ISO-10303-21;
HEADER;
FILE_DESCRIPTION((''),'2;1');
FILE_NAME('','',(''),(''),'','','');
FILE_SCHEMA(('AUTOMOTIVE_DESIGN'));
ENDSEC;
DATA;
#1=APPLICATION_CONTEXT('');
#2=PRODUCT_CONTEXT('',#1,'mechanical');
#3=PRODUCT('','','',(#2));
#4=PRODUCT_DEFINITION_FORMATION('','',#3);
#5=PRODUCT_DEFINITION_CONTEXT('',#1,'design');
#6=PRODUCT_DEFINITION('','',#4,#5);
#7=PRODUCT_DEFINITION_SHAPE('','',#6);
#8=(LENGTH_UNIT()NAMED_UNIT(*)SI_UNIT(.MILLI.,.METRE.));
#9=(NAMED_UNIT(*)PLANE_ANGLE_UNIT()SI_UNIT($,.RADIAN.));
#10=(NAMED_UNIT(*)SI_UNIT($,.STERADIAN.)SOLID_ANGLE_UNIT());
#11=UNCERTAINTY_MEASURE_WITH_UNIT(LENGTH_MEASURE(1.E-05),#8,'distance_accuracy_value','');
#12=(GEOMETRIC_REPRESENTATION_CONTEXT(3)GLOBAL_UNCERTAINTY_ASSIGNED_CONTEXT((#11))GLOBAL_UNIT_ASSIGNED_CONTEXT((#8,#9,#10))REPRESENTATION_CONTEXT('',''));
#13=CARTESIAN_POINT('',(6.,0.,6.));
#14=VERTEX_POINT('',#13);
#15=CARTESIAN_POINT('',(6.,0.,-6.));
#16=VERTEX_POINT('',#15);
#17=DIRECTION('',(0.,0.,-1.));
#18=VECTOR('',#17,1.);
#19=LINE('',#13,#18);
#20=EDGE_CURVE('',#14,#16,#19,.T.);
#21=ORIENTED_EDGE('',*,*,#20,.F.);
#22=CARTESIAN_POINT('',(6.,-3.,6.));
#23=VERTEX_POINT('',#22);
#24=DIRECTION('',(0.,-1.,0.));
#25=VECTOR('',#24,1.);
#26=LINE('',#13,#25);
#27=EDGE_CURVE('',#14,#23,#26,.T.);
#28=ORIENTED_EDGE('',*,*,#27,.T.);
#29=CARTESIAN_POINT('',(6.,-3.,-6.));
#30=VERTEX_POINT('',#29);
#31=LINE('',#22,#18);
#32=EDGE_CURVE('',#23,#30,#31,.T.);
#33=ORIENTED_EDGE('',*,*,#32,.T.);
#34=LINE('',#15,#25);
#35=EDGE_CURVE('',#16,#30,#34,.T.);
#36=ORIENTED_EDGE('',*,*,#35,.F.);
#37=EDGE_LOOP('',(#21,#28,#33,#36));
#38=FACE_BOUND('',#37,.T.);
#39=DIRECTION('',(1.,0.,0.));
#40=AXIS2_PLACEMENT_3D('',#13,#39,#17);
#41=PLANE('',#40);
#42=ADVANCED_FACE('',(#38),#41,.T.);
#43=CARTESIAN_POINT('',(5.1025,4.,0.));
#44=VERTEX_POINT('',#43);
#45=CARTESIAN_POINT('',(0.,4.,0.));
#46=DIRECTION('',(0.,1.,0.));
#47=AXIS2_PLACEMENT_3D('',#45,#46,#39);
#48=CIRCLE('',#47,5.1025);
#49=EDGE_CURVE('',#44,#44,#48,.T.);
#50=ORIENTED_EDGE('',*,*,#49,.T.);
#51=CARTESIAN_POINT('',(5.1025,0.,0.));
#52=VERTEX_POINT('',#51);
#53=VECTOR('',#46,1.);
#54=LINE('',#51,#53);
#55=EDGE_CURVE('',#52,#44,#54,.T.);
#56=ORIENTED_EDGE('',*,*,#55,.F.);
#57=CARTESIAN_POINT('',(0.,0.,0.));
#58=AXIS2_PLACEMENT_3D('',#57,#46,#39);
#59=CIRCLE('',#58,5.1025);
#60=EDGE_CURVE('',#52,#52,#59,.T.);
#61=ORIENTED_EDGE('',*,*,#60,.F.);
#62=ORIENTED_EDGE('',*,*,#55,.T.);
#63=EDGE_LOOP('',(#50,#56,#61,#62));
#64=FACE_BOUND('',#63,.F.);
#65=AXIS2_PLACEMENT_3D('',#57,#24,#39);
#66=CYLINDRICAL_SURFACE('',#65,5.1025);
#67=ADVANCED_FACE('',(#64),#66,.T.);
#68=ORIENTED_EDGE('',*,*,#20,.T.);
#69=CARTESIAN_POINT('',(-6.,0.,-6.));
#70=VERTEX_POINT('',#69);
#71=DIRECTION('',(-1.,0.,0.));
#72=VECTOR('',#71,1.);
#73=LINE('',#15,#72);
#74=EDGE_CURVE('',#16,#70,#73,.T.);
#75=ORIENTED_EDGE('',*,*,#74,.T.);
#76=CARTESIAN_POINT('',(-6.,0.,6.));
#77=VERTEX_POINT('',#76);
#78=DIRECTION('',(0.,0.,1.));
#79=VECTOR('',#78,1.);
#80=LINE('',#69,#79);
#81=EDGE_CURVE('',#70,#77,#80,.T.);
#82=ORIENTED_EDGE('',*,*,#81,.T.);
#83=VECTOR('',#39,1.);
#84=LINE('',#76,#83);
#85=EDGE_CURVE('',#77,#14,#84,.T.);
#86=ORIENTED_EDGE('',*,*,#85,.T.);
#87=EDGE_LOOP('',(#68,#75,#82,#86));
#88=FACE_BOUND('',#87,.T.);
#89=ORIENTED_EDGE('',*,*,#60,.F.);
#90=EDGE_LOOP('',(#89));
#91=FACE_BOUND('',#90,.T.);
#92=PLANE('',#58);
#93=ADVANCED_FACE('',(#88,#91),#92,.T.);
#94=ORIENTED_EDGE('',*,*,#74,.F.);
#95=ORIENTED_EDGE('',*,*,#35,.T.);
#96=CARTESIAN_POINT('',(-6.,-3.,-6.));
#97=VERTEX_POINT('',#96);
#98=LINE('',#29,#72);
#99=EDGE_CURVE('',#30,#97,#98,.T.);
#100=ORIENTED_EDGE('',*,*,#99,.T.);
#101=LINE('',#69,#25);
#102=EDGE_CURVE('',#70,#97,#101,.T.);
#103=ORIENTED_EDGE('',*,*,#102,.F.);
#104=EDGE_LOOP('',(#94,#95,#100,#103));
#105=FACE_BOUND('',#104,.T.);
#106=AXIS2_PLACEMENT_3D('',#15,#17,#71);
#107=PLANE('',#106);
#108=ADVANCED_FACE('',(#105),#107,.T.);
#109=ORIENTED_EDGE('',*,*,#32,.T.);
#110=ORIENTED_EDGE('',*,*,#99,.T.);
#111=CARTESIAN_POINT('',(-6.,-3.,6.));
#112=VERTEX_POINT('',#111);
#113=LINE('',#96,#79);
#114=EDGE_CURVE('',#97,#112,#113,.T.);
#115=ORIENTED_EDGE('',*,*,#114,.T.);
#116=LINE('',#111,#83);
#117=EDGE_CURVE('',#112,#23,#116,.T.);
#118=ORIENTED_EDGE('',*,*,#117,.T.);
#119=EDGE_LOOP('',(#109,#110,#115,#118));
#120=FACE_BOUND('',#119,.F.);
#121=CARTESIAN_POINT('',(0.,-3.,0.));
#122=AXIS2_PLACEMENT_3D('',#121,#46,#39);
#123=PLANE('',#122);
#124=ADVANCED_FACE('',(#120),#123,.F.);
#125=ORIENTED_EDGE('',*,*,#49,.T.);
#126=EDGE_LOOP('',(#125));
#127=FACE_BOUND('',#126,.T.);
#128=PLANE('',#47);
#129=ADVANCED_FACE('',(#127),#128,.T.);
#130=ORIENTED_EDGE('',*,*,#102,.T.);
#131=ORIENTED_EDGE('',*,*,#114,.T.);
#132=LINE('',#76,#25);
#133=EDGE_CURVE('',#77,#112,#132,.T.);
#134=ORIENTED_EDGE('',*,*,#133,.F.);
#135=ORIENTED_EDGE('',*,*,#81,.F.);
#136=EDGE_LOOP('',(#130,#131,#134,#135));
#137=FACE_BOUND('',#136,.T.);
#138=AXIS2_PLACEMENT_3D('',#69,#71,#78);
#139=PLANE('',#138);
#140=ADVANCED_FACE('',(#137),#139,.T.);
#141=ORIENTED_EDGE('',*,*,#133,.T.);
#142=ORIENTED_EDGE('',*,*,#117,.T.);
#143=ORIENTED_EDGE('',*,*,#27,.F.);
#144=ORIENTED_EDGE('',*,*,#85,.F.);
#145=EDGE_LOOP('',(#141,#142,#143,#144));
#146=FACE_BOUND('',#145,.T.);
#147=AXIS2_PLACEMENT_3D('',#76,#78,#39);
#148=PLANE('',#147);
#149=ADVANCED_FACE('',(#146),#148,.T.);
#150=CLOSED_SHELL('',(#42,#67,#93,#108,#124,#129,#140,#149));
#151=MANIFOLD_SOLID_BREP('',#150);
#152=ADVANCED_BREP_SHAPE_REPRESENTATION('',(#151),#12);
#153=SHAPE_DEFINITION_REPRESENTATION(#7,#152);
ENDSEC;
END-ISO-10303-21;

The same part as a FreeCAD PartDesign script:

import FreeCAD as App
import Part
import Sketcher

V = App.Vector
Q = App.Units.Quantity


def add_polygon(sketch, points):
    """Adds a closed chain of lines whose ends are joined by coincident constraints."""
    first, n = sketch.GeometryCount, len(points)
    for a, b in zip(points, points[1:] + points[:1]):
        sketch.addGeometry(Part.LineSegment(App.Vector(*a, 0), App.Vector(*b, 0)), False)
    for i in range(n):
        sketch.addConstraint(Sketcher.Constraint("Coincident", first + i, 2, first + (i + 1) % n, 1))

doc = App.newDocument("Part")
body = doc.addObject("PartDesign::Body", "Body")

sketch1 = body.newObject("Sketcher::SketchObject", "Sketch")
sketch1.AttachmentSupport = (doc.getObject("XZ_Plane"), [""])
sketch1.MapMode = "FlatFace"
sketch1.addGeometry(Part.Circle(V(0, 0, 0), V(0, 0, 1), 5), False)
sketch1.addConstraint([
    Sketcher.Constraint("Coincident", 0, 3, -1, 1),
    Sketcher.Constraint("Diameter", 0, Q("10.205 mm")),
])
pad1 = body.newObject("PartDesign::Pad", "Pad")
pad1.Profile = sketch1
pad1.Length = 4
pad1.Reversed = True

sketch2 = body.newObject("Sketcher::SketchObject", "Sketch001")
sketch2.AttachmentSupport = (doc.getObject("XZ_Plane"), [""])
sketch2.MapMode = "FlatFace"
add_polygon(sketch2, [(6, 6), (6, -6), (-6, -6), (-6, 6)])
sketch2.addConstraint([
    Sketcher.Constraint("Vertical", 0),
    Sketcher.Constraint("Horizontal", 1),
    Sketcher.Constraint("Vertical", 2),
    Sketcher.Constraint("Horizontal", 3),
    Sketcher.Constraint("Symmetric", 0, 2, 2, 2, -1, 1),
    Sketcher.Constraint("Equal", 3, 0),
    Sketcher.Constraint("DistanceX", 1, 2, 1, 1, Q("12 mm")),
])
pad2 = body.newObject("PartDesign::Pad", "Pad001")
pad2.Profile = sketch2
pad2.Length = 3

doc.recompute()
